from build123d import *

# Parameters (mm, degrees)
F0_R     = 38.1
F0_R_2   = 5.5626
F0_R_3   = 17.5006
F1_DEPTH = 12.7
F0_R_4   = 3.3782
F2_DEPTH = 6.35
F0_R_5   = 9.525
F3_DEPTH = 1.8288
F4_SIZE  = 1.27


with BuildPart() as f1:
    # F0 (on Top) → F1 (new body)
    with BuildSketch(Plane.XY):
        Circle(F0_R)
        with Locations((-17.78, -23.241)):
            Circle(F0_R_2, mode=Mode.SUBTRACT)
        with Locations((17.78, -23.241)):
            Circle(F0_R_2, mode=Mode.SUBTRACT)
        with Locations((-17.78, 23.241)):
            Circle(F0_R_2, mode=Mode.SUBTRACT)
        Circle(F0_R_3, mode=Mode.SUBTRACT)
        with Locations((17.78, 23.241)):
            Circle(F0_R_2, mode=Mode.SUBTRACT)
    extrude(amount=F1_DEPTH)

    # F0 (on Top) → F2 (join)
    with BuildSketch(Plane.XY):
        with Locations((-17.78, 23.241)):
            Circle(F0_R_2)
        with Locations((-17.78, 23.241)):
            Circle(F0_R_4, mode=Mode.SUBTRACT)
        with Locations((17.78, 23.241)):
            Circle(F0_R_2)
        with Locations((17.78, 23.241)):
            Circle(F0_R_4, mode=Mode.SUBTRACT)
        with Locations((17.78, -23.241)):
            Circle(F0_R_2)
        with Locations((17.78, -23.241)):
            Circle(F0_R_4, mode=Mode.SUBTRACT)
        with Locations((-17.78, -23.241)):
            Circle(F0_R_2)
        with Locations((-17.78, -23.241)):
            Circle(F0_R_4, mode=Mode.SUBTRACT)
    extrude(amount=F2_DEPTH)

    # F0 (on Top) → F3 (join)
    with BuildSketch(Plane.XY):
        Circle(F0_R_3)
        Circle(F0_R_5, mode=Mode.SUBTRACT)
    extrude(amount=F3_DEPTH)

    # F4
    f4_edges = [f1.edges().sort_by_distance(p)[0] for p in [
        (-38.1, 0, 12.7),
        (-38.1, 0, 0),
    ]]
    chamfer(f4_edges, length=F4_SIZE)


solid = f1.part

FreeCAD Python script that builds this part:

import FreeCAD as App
import Part
import Sketcher
from FreeCAD import Vector
Q = App.Units.Quantity


def edges_at(feature, points):
    """Names of the edges that pass closest to the given points."""
    edges = feature.Shape.Edges
    near = lambda p: min(range(len(edges)), key=lambda i: edges[i].distToShape(Part.Vertex(*p))[0])
    return sorted({f"Edge{near(p) + 1}" for p in points})

doc = App.newDocument("Part")
params = doc.addObject("Spreadsheet::Sheet", "Params")
for row, (alias, value) in enumerate([
    ("sketch1_diameter", "3 in"),
    ("sketch1_diameter2", "0.438 in"),
    ("sketch1_diameter3", "1.378 in"),
    ("pad1_length", "0.5 in"),
    ("sketch2_diameter", "0.438 in"),
    ("sketch2_diameter2", "0.266 in"),
    ("pad2_length", "0.25 in"),
    ("sketch3_diameter", "0.75 in"),
    ("sketch3_diameter2", "1.378 in"),
    ("pad3_length", "0.072 in"),
    ("chamfer_size", "0.05 in"),
], start=1):
    params.set(f"A{row}", alias)
    params.set(f"B{row}", "=" + value)
    params.setAlias(f"B{row}", alias)

body = doc.addObject("PartDesign::Body", "Body")

# Sketch on XY plane
sketch1 = body.newObject("Sketcher::SketchObject", "Sketch")
sketch1.AttachmentSupport = (doc.getObject("XY_Plane"), [""])
sketch1.MapMode = "FlatFace"
sketch1.addGeometry([
    Part.Circle(Vector(0, 0, 0), Vector(0, 0, 1), 38),  # 0
    Part.Circle(Vector(-18, -23, 0), Vector(0, 0, 1), 6),  # 1
    Part.Circle(Vector(18, -23, 0), Vector(0, 0, 1), 6),  # 2
    Part.Circle(Vector(0, 0, 0), Vector(0, 0, 1), 18),  # 3
    Part.Circle(Vector(-18, 23, 0), Vector(0, 0, 1), 6),  # 4
    Part.Circle(Vector(18, 23, 0), Vector(0, 0, 1), 6),  # 5
], False)
sketch1.addConstraint([
    Sketcher.Constraint("Coincident", 0, 3, -1, 1),
    Sketcher.Constraint("Coincident", 3, 3, -1, 1),
    Sketcher.Constraint("Equal", 1, 2),
    Sketcher.Constraint("Equal", 2, 4),
    Sketcher.Constraint("Equal", 4, 5),
    Sketcher.Constraint("Symmetric", 2, 3, 4, 3, -1, 1),
    Sketcher.Constraint("Symmetric", 1, 3, 5, 3, -1, 1),
    Sketcher.Constraint("Symmetric", 1, 3, 2, 3, -2),
    Sketcher.Constraint("Diameter", 0, Q("3 in")),
    Sketcher.Constraint("Diameter", 1, Q("0.438 in")),
    Sketcher.Constraint("Diameter", 3, Q("1.378 in")),
    Sketcher.Constraint("DistanceX", 1, 3, -1, 1, Q("0.7 in")),
    Sketcher.Constraint("DistanceY", 1, 3, 4, 3, Q("1.83 in")),
])
sketch1.setExpression("Constraints[8]", "Params.sketch1_diameter")
sketch1.setExpression("Constraints[9]", "Params.sketch1_diameter2")
sketch1.setExpression("Constraints[10]", "Params.sketch1_diameter3")
pad1 = body.newObject("PartDesign::Pad", "Pad")
pad1.Profile = sketch1
pad1.setExpression("Length", "Params.pad1_length")

# Sketch on XY plane
sketch2 = body.newObject("Sketcher::SketchObject", "Sketch001")
sketch2.AttachmentSupport = (doc.getObject("XY_Plane"), [""])
sketch2.MapMode = "FlatFace"
sketch2.addGeometry([
    Part.Circle(Vector(-17.8, 23.2, 0), Vector(0, 0, 1), 5.6),  # 0
    Part.Circle(Vector(-17.8, 23.2, 0), Vector(0, 0, 1), 3.4),  # 1
    Part.Circle(Vector(17.8, 23.2, 0), Vector(0, 0, 1), 5.6),  # 2
    Part.Circle(Vector(17.8, 23.2, 0), Vector(0, 0, 1), 3.4),  # 3
    Part.Circle(Vector(17.8, -23.2, 0), Vector(0, 0, 1), 5.6),  # 4
    Part.Circle(Vector(17.8, -23.2, 0), Vector(0, 0, 1), 3.4),  # 5
    Part.Circle(Vector(-17.8, -23.2, 0), Vector(0, 0, 1), 5.6),  # 6
    Part.Circle(Vector(-17.8, -23.2, 0), Vector(0, 0, 1), 3.4),  # 7
], False)
sketch2.addConstraint([
    Sketcher.Constraint("Coincident", 1, 3, 0, 3),
    Sketcher.Constraint("Coincident", 3, 3, 2, 3),
    Sketcher.Constraint("Coincident", 5, 3, 4, 3),
    Sketcher.Constraint("Coincident", 7, 3, 6, 3),
    Sketcher.Constraint("Equal", 0, 2),
    Sketcher.Constraint("Equal", 1, 3),
    Sketcher.Constraint("Equal", 2, 4),
    Sketcher.Constraint("Equal", 3, 5),
    Sketcher.Constraint("Equal", 4, 6),
    Sketcher.Constraint("Equal", 5, 7),
    Sketcher.Constraint("Symmetric", 0, 3, 4, 3, -1, 1),
    Sketcher.Constraint("Symmetric", 2, 3, 6, 3, -1, 1),
    Sketcher.Constraint("Symmetric", 0, 3, 2, 3, -2),
    Sketcher.Constraint("Diameter", 0, Q("0.438 in")),
    Sketcher.Constraint("Diameter", 1, Q("0.266 in")),
    Sketcher.Constraint("DistanceX", 0, 3, -1, 1, Q("0.7 in")),
    Sketcher.Constraint("DistanceY", 4, 3, 2, 3, Q("1.83 in")),
])
sketch2.setExpression("Constraints[13]", "Params.sketch2_diameter")
sketch2.setExpression("Constraints[14]", "Params.sketch2_diameter2")
pad2 = body.newObject("PartDesign::Pad", "Pad001")
pad2.Profile = sketch2
pad2.setExpression("Length", "Params.pad2_length")

# Sketch on XY plane
sketch3 = body.newObject("Sketcher::SketchObject", "Sketch002")
sketch3.AttachmentSupport = (doc.getObject("XY_Plane"), [""])
sketch3.MapMode = "FlatFace"
sketch3.addGeometry([
    Part.Circle(Vector(0, 0, 0), Vector(0, 0, 1), 18),
    Part.Circle(Vector(0, 0, 0), Vector(0, 0, 1), 10),
], False)
sketch3.addConstraint([
    Sketcher.Constraint("Coincident", 0, 3, -1, 1),
    Sketcher.Constraint("Coincident", 1, 3, -1, 1),
    Sketcher.Constraint("Diameter", 1, Q("0.75 in")),
    Sketcher.Constraint("Diameter", 0, Q("1.378 in")),
])
sketch3.setExpression("Constraints[2]", "Params.sketch3_diameter")
sketch3.setExpression("Constraints[3]", "Params.sketch3_diameter2")
pad3 = body.newObject("PartDesign::Pad", "Pad002")
pad3.Profile = sketch3
pad3.setExpression("Length", "Params.pad3_length")
doc.recompute()

chamfer = body.newObject("PartDesign::Chamfer", "Chamfer")
chamfer.Base = (pad3, edges_at(pad3, [(-38.1, 0, 12.7), (-38.1, 0, 0)]))
chamfer.setExpression("Size", "Params.chamfer_size")

doc.recompute()
